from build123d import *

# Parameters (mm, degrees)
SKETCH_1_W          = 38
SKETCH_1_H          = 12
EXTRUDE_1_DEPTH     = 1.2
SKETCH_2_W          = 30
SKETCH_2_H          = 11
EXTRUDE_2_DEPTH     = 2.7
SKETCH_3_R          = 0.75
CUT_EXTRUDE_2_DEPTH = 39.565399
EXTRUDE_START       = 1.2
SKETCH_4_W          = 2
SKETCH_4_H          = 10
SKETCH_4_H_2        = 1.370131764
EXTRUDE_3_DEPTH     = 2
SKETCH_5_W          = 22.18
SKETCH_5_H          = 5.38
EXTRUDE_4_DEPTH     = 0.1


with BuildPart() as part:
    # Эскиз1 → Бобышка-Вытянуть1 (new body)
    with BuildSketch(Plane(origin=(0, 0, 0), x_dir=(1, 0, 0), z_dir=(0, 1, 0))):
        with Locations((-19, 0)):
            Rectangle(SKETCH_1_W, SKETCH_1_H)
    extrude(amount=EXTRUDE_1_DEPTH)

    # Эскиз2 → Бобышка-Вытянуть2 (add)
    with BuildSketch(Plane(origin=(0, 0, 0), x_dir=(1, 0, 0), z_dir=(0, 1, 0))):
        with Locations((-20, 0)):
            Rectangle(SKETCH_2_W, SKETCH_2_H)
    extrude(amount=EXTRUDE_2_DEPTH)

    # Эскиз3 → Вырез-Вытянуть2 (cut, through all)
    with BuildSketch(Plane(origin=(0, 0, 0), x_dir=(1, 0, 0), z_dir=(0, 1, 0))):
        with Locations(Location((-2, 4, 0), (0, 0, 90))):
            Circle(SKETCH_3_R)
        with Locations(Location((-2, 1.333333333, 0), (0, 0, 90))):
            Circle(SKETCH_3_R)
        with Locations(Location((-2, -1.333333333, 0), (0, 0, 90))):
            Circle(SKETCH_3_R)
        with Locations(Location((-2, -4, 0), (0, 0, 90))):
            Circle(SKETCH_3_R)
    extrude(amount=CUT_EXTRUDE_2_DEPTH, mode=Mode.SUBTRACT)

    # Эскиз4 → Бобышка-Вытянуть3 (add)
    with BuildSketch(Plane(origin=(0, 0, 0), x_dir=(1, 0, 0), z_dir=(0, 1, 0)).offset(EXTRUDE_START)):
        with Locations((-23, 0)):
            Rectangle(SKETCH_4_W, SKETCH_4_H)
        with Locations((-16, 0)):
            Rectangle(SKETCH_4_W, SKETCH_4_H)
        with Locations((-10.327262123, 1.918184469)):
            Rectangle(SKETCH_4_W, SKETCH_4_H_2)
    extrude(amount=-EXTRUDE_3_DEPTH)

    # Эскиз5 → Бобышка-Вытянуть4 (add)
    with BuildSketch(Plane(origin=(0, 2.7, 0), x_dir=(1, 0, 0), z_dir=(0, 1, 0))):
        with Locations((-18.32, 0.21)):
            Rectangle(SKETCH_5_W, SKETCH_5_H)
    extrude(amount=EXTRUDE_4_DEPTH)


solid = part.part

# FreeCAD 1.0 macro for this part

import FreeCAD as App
import Part
import Sketcher


def add_polygon(sketch, points):
    """Adds a closed chain of lines whose ends are joined by coincident constraints."""
    first, n = sketch.GeometryCount, len(points)
    for a, b in zip(points, points[1:] + points[:1]):
        sketch.addGeometry(Part.LineSegment(App.Vector(*a, 0), App.Vector(*b, 0)), False)
    for i in range(n):
        sketch.addConstraint(Sketcher.Constraint("Coincident", first + i, 2, first + (i + 1) % n, 1))

doc = App.newDocument("Part")
body = doc.addObject("PartDesign::Body", "Body")

# Sketch on XZ plane
sketch1 = body.newObject("Sketcher::SketchObject", "Sketch")
sketch1.AttachmentSupport = (doc.getObject("XZ_Plane"), [""])
sketch1.MapMode = "FlatFace"
add_polygon(sketch1, [(-38, -6), (-38, 6), (0, 6), (0, -6)])  # lines 0-3
sketch1.addConstraint(Sketcher.Constraint("Vertical", 0))
sketch1.addConstraint(Sketcher.Constraint("Horizontal", 1))
sketch1.addConstraint(Sketcher.Constraint("Vertical", 2))
sketch1.addConstraint(Sketcher.Constraint("Horizontal", 3))
sketch1.addConstraint(Sketcher.Constraint("Symmetric", 1, 2, 2, 2, -1, 1))
sketch1.addConstraint(Sketcher.Constraint("DistanceX", 1, 1, 1, 2, 38.0))
sketch1.addConstraint(Sketcher.Constraint("DistanceY", 0, 1, 0, 2, 12.0))
pad1 = body.newObject("PartDesign::Pad", "Pad")
pad1.Profile = sketch1
pad1.Length = 1.2
pad1.Reversed = True

# Sketch on XZ plane
sketch2 = body.newObject("Sketcher::SketchObject", "Sketch001")
sketch2.AttachmentSupport = (doc.getObject("XZ_Plane"), [""])
sketch2.MapMode = "FlatFace"
add_polygon(sketch2, [(-35, -6), (-35, 6), (-5, 6), (-5, -6)])  # lines 0-3
sketch2.addConstraint(Sketcher.Constraint("Vertical", 0))
sketch2.addConstraint(Sketcher.Constraint("Horizontal", 1))
sketch2.addConstraint(Sketcher.Constraint("Vertical", 2))
sketch2.addConstraint(Sketcher.Constraint("Horizontal", 3))
sketch2.addConstraint(Sketcher.Constraint("DistanceX", 1, 1, 1, 2, 30.0))
sketch2.addConstraint(Sketcher.Constraint("DistanceY", 0, 1, 0, 2, 11.0))
sketch2.addConstraint(Sketcher.Constraint("DistanceX", 0, 2, -1, 1, 35.0))
sketch2.addConstraint(Sketcher.Constraint("DistanceY", -1, 1, 0, 2, 5.5))
pad2 = body.newObject("PartDesign::Pad", "Pad001")
pad2.Profile = sketch2
pad2.Length = 2.7
pad2.Reversed = True

# Sketch on XZ plane
sketch3 = body.newObject("Sketcher::SketchObject", "Sketch002")
sketch3.AttachmentSupport = (doc.getObject("XZ_Plane"), [""])
sketch3.MapMode = "FlatFace"
sketch3.addGeometry(Part.Circle(App.Vector(-2, -4, 0), App.Vector(0, 0, 1), 0.8), False)
sketch3.addGeometry(Part.Circle(App.Vector(-2, -1.3, 0), App.Vector(0, 0, 1), 0.8), False)
sketch3.addGeometry(Part.Circle(App.Vector(-2, 1.3, 0), App.Vector(0, 0, 1), 0.8), False)
sketch3.addGeometry(Part.Circle(App.Vector(-2, 4, 0), App.Vector(0, 0, 1), 0.8), False)
sketch3.addConstraint(Sketcher.Constraint("Equal", 0, 1))
sketch3.addConstraint(Sketcher.Constraint("Equal", 1, 2))
sketch3.addConstraint(Sketcher.Constraint("Equal", 2, 3))
sketch3.addConstraint(Sketcher.Constraint("Symmetric", 1, 3, 2, 3, -1))
sketch3.addConstraint(Sketcher.Constraint("Symmetric", 0, 3, 3, 3, -1))
sketch3.addConstraint(Sketcher.Constraint("Vertical", 0, 3, 1, 3))
sketch3.addConstraint(Sketcher.Constraint("Diameter", 0, 1.5))
sketch3.addConstraint(Sketcher.Constraint("DistanceX", 0, 3, -1, 1, 2.0))
sketch3.addConstraint(Sketcher.Constraint("DistanceY", 0, 3, -1, 1, 4.0))
sketch3.addConstraint(Sketcher.Constraint("DistanceY", 1, 3, -1, 1, 1.333333))
pocket1 = body.newObject("PartDesign::Pocket", "Pocket")
pocket1.Profile = sketch3
pocket1.Type = "ThroughAll"

# Sketch on XZ plane
sketch4 = body.newObject("Sketcher::SketchObject", "Sketch003")
sketch4.AttachmentSupport = (doc.getObject("XZ_Plane"), [""])
sketch4.MapMode = "FlatFace"
sketch4.AttachmentOffset = App.Placement(App.Vector(0, 0, -1.2), App.Rotation())
add_polygon(sketch4, [(-24, -5), (-24, 5), (-22, 5), (-22, -5)])  # lines 0-3
add_polygon(sketch4, [(-17, -5), (-17, 5), (-15, 5), (-15, -5)])  # lines 4-7
add_polygon(sketch4, [(-11.3, -2.6), (-11.3, -1.2), (-9.3, -1.2), (-9.3, -2.6)])  # lines 8-11
sketch4.addConstraint(Sketcher.Constraint("Vertical", 0))
sketch4.addConstraint(Sketcher.Constraint("Horizontal", 1))
sketch4.addConstraint(Sketcher.Constraint("Vertical", 2))
sketch4.addConstraint(Sketcher.Constraint("Horizontal", 3))
sketch4.addConstraint(Sketcher.Constraint("Vertical", 4))
sketch4.addConstraint(Sketcher.Constraint("Horizontal", 5))
sketch4.addConstraint(Sketcher.Constraint("Vertical", 6))
sketch4.addConstraint(Sketcher.Constraint("Horizontal", 7))
sketch4.addConstraint(Sketcher.Constraint("Vertical", 8))
sketch4.addConstraint(Sketcher.Constraint("Horizontal", 9))
sketch4.addConstraint(Sketcher.Constraint("Vertical", 10))
sketch4.addConstraint(Sketcher.Constraint("Horizontal", 11))
sketch4.addConstraint(Sketcher.Constraint("Horizontal", 1, 2, 4, 2))
sketch4.addConstraint(Sketcher.Constraint("Horizontal", 3, 2, 6, 2))
sketch4.addConstraint(Sketcher.Constraint("Equal", 3, 5))
sketch4.addConstraint(Sketcher.Constraint("Equal", 7, 9))
sketch4.addConstraint(Sketcher.Constraint("DistanceX", 1, 1, 1, 2, 2.0))
sketch4.addConstraint(Sketcher.Constraint("DistanceY", 0, 1, 0, 2, 10.0))
sketch4.addConstraint(Sketcher.Constraint("DistanceX", 0, 2, -1, 1, 24.0))
sketch4.addConstraint(Sketcher.Constraint("DistanceY", -1, 1, 0, 2, 5.0))
sketch4.addConstraint(Sketcher.Constraint("DistanceX", 4, 2, -1, 1, 17.0))
sketch4.addConstraint(Sketcher.Constraint("DistanceY", 8, 1, 8, 2, 1.370132))
sketch4.addConstraint(Sketcher.Constraint("DistanceY", 8, 2, -1, 1, 1.233119))
sketch4.addConstraint(Sketcher.Constraint("DistanceX", 8, 2, -1, 1, 11.327262))
pad3 = body.newObject("PartDesign::Pad", "Pad002")
pad3.Profile = sketch4
pad3.Length = 2

# Sketch on XZ plane
sketch5 = body.newObject("Sketcher::SketchObject", "Sketch004")
sketch5.AttachmentSupport = (doc.getObject("XZ_Plane"), [""])
sketch5.MapMode = "FlatFace"
sketch5.AttachmentOffset = App.Placement(App.Vector(0, 0, -2.7), App.Rotation())
add_polygon(sketch5, [(-29, -3), (-29, 2), (-7, 2), (-7, -3)])  # lines 0-3
sketch5.addConstraint(Sketcher.Constraint("Vertical", 0))
sketch5.addConstraint(Sketcher.Constraint("Horizontal", 1))
sketch5.addConstraint(Sketcher.Constraint("Vertical", 2))
sketch5.addConstraint(Sketcher.Constraint("Horizontal", 3))
sketch5.addConstraint(Sketcher.Constraint("DistanceX", 1, 1, 1, 2, 22.18))
sketch5.addConstraint(Sketcher.Constraint("DistanceY", 0, 1, 0, 2, 5.38))
sketch5.addConstraint(Sketcher.Constraint("DistanceY", 2, 2, -1, 1, 2.9))
sketch5.addConstraint(Sketcher.Constraint("DistanceX", 0, 2, -1, 1, 29.41))
pad4 = body.newObject("PartDesign::Pad", "Pad003")
pad4.Profile = sketch5
pad4.Length = 0.1
pad4.Reversed = True

doc.recompute()
